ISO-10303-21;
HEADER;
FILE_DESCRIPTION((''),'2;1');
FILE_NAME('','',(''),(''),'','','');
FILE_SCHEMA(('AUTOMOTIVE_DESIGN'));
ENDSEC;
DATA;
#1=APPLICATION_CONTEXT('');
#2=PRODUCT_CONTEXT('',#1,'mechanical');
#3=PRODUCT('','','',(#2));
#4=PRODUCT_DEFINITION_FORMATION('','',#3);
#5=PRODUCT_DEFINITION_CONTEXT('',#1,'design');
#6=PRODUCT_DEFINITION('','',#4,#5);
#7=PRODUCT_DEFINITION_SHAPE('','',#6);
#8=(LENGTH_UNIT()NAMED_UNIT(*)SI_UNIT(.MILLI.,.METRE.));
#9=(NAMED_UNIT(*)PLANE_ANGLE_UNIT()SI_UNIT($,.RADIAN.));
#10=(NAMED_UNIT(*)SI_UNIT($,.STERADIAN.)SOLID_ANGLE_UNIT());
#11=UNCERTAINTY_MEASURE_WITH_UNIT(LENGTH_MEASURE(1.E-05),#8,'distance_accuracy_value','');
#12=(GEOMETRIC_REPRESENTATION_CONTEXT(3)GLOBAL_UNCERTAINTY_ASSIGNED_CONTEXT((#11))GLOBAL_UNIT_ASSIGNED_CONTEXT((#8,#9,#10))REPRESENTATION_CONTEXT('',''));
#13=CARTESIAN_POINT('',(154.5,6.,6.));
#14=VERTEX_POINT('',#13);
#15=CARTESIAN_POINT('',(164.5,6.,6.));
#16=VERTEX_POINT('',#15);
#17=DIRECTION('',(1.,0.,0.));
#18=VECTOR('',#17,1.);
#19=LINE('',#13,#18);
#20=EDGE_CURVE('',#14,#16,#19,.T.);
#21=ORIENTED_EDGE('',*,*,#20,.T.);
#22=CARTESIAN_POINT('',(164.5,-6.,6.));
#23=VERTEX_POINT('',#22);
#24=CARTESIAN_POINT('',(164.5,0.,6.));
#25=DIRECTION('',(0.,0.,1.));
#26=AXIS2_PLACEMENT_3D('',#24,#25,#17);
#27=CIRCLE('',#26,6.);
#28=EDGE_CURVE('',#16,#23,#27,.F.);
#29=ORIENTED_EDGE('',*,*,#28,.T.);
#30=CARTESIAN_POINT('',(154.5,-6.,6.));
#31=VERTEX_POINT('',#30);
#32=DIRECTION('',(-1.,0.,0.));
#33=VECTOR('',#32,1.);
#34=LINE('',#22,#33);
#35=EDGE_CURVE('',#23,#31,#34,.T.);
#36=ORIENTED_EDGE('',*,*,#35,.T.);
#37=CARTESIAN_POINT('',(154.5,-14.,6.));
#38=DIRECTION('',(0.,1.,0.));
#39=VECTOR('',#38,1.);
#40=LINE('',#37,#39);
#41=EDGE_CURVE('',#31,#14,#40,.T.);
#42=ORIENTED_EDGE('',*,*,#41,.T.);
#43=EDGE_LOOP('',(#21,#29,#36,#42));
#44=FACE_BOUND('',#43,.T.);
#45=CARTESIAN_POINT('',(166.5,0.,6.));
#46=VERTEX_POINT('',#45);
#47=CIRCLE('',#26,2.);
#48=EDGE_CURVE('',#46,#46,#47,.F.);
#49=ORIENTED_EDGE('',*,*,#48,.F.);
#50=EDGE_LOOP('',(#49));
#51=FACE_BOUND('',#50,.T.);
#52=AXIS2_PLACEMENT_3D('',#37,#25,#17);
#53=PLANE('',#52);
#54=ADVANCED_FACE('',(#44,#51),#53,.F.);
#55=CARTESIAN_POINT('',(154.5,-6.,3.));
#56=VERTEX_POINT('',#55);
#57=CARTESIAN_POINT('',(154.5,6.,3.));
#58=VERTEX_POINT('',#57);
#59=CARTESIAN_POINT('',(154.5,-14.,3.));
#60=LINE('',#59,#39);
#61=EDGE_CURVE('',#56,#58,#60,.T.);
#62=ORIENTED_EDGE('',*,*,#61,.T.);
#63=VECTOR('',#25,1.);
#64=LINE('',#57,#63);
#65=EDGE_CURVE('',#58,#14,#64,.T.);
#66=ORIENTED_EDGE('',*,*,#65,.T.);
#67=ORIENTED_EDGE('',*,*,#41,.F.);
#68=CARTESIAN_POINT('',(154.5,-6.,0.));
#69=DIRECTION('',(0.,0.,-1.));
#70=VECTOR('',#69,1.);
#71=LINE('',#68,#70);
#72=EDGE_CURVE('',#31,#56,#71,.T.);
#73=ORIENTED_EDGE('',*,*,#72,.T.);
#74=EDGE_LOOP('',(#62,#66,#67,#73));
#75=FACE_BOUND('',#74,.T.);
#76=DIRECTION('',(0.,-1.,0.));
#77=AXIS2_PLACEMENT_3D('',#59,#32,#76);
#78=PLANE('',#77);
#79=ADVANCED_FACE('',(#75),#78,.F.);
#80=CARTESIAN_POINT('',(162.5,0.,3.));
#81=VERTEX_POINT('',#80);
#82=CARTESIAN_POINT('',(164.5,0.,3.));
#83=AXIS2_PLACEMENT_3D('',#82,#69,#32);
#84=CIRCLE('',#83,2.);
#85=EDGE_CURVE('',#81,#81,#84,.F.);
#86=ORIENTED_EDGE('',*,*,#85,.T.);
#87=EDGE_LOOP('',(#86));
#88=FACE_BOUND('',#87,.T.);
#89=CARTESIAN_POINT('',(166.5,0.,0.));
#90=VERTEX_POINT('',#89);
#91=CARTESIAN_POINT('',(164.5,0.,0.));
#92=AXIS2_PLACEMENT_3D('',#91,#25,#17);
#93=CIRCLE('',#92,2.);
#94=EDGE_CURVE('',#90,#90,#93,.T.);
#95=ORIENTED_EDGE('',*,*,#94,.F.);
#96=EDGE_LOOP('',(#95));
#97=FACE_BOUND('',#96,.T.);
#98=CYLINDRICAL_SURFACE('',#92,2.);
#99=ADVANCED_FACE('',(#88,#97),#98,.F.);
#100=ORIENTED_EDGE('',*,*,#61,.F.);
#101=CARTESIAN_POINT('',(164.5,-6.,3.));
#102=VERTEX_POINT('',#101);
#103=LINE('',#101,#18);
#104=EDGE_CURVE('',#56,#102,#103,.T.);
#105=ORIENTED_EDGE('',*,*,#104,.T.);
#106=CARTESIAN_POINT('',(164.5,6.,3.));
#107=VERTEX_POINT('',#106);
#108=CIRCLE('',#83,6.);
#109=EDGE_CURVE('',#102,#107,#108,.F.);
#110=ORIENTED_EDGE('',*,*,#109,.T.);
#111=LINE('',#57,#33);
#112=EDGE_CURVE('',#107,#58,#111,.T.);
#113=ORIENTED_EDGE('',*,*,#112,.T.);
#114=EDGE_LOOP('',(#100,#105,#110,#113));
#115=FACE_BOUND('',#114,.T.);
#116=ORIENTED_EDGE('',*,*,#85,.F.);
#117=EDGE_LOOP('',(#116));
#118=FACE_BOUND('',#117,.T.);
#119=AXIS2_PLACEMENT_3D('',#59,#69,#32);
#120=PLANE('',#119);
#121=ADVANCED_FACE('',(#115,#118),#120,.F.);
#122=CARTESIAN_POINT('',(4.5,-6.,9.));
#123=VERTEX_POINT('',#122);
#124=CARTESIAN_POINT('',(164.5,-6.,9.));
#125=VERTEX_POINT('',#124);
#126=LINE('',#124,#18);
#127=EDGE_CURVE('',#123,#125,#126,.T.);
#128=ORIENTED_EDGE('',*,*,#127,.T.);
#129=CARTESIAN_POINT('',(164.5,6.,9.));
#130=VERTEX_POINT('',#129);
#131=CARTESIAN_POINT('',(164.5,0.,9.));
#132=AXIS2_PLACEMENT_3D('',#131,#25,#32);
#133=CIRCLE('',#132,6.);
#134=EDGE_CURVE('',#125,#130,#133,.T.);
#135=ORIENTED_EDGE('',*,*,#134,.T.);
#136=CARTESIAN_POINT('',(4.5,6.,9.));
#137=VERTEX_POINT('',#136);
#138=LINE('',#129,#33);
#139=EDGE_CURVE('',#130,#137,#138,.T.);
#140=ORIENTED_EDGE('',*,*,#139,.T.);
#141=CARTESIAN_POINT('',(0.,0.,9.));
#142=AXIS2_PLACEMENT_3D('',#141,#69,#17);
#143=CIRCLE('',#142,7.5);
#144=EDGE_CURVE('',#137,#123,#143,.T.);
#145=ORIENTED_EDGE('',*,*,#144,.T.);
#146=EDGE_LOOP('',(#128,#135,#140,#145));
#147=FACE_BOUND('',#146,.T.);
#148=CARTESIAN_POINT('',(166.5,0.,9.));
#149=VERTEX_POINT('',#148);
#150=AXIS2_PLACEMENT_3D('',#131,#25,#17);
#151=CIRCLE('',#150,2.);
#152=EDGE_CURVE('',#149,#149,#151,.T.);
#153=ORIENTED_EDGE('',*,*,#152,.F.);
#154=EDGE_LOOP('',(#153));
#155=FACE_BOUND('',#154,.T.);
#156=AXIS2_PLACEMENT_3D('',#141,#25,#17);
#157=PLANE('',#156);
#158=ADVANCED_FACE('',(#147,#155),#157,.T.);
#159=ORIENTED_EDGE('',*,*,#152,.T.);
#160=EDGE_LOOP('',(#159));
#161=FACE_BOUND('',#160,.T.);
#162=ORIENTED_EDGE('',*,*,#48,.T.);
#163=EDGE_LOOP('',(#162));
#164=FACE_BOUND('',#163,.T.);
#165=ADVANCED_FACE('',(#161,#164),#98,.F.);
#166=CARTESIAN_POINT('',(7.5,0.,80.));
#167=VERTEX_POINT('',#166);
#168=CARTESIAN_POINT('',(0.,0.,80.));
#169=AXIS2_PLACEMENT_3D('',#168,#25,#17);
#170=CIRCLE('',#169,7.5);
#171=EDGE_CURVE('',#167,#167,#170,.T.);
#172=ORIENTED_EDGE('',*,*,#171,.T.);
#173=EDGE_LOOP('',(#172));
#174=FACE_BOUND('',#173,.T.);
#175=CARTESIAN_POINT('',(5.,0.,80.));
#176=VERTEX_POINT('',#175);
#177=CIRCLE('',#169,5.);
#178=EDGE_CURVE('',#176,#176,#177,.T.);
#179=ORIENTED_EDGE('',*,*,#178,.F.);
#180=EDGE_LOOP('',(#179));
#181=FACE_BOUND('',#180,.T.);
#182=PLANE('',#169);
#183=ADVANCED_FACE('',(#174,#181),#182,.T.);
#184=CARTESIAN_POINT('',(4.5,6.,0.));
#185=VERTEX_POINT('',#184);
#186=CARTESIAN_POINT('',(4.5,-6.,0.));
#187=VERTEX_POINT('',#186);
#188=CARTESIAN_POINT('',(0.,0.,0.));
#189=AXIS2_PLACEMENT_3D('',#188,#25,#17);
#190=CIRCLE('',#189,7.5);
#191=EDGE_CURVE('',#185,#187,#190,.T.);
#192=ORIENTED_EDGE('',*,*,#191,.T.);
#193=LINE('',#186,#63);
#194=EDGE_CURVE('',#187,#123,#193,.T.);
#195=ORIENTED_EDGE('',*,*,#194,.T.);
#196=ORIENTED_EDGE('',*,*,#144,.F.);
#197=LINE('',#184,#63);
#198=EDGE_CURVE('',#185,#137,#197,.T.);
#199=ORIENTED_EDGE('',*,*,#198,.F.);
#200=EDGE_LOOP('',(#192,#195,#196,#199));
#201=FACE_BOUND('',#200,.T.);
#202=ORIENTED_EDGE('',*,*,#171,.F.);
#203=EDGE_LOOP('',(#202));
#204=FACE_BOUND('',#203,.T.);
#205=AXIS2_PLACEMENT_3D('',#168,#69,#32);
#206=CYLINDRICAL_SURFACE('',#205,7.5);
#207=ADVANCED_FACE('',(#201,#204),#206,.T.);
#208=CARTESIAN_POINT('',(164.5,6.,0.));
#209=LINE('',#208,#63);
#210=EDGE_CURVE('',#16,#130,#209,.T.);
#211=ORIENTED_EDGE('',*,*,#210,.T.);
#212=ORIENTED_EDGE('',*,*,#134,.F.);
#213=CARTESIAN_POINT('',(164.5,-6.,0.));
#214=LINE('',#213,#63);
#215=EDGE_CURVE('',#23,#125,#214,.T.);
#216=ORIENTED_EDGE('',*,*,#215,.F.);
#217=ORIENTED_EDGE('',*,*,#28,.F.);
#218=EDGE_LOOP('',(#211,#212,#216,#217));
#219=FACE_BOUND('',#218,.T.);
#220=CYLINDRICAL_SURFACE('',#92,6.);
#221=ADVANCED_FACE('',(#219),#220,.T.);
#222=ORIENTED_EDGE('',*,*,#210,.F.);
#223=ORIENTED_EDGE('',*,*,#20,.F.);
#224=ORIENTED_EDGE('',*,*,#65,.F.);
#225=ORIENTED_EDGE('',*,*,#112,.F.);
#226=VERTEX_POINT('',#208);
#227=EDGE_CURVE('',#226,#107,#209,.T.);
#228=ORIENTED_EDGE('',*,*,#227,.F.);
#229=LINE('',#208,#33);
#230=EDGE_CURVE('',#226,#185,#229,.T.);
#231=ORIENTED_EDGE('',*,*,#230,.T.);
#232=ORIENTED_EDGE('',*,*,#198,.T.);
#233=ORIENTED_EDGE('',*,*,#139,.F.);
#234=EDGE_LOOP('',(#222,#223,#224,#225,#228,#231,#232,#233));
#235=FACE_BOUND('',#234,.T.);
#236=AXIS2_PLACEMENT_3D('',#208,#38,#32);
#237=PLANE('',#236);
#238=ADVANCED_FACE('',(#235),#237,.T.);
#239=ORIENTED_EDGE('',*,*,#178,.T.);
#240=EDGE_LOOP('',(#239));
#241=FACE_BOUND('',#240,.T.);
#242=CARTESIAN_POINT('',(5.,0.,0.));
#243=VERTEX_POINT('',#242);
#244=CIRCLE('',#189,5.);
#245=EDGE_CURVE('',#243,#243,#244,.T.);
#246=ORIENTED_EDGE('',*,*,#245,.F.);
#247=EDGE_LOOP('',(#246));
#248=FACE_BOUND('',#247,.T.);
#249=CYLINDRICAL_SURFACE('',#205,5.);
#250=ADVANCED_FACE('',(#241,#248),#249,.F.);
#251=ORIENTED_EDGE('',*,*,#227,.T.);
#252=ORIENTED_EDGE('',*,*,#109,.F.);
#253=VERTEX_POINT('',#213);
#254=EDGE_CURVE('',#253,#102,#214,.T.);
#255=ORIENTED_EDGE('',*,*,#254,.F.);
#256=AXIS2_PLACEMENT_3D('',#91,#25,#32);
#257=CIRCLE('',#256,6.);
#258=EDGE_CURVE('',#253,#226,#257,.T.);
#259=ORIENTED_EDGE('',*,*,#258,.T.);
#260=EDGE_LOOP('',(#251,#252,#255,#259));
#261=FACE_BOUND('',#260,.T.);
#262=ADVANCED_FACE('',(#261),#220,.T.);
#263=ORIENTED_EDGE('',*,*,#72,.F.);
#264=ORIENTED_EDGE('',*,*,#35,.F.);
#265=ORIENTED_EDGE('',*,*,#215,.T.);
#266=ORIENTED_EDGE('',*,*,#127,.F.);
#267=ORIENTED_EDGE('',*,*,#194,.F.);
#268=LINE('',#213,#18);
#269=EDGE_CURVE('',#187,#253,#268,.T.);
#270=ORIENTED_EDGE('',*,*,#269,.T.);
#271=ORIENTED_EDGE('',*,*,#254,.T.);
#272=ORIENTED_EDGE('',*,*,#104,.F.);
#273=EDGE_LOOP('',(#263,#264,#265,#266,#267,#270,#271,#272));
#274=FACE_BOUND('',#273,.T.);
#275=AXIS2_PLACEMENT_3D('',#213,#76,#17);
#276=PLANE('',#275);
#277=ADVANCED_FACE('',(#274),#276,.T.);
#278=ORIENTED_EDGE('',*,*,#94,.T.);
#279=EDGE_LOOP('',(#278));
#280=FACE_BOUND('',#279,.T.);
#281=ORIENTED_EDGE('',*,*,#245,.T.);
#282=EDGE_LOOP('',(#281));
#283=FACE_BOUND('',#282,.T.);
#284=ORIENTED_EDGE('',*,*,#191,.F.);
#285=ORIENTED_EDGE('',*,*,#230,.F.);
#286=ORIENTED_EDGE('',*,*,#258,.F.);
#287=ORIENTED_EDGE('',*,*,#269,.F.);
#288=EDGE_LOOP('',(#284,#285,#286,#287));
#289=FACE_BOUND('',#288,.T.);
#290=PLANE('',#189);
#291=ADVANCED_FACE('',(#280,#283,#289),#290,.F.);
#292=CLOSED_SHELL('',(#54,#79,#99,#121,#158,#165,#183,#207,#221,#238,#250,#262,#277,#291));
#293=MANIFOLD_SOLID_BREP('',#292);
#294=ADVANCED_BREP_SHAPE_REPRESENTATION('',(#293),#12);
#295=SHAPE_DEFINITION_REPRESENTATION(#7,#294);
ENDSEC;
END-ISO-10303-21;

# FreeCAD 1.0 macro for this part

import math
import FreeCAD as App
import Part
import Sketcher
from FreeCAD import Vector

doc = App.newDocument("Part")
body = doc.addObject("PartDesign::Body", "Body")

# Sketch on XY plane
sketch1 = body.newObject("Sketcher::SketchObject", "Sketch")
sketch1.AttachmentSupport = (doc.getObject("XY_Plane"), [""])
sketch1.MapMode = "FlatFace"
sketch1.addGeometry([
    Part.Circle(Vector(0, 0, 0), Vector(0, 0, 1), 8),
    Part.Circle(Vector(0, 0, 0), Vector(0, 0, 1), 5),
], False)
sketch1.addConstraint([
    Sketcher.Constraint("Coincident", 0, 3, -1, 1),
    Sketcher.Constraint("Coincident", 1, 3, -1, 1),
    Sketcher.Constraint("Diameter", 0, 15.0),
    Sketcher.Constraint("Diameter", 1, 10.0),
])
pad1 = body.newObject("PartDesign::Pad", "Pad")
pad1.Profile = sketch1
pad1.Length = 80

# Sketch on XY plane
sketch2 = body.newObject("Sketcher::SketchObject", "Sketch001")
sketch2.AttachmentSupport = (doc.getObject("XY_Plane"), [""])
sketch2.MapMode = "FlatFace"
sketch2.addGeometry([
    Part.LineSegment(Vector(4.5, -6, 0), Vector(164.5, -6, 0)),  # 0
    Part.ArcOfCircle(Part.Circle(Vector(164.5, 0, 0), Vector(0, 0, 1), 6), math.radians(-90), math.radians(90)),  # 1
    Part.LineSegment(Vector(164.5, 6, 0), Vector(4.5, 6, 0)),  # 2
    Part.ArcOfCircle(Part.Circle(Vector(0, 0, 0), Vector(0, 0, 1), 7.5), math.radians(-53), math.radians(53)),  # 3
    Part.Circle(Vector(164.5, 0, 0), Vector(0, 0, 1), 2),  # 4
], False)
sketch2.addConstraint([
    Sketcher.Constraint("Tangent", 0, 2, 1, 1),
    Sketcher.Constraint("Tangent", 1, 2, 2, 1),
    Sketcher.Constraint("Coincident", 2, 2, 3, 2),
    Sketcher.Constraint("Coincident", 3, 1, 0, 1),
    Sketcher.Constraint("Horizontal", 0),
    Sketcher.Constraint("Horizontal", 2),
    Sketcher.Constraint("Coincident", 3, 3, -1, 1),
    Sketcher.Constraint("Coincident", 4, 3, 1, 3),
    Sketcher.Constraint("PointOnObject", 1, 3, -1),
    Sketcher.Constraint("Diameter", 4, 4.0),
    Sketcher.Constraint("Radius", 1, 6.0),
    Sketcher.Constraint("Radius", 3, 7.5),
    Sketcher.Constraint("DistanceX", 0, 1, 0, 2, 160.0),
])
pad2 = body.newObject("PartDesign::Pad", "Pad001")
pad2.Profile = sketch2
pad2.Length = 9

# Sketch on XZ plane
sketch3 = body.newObject("Sketcher::SketchObject", "Sketch002")
sketch3.AttachmentSupport = (doc.getObject("XZ_Plane"), [""])
sketch3.MapMode = "FlatFace"
sketch3.AttachmentOffset = App.Placement(Vector(0, 0, -6), App.Rotation())
sketch3.addGeometry([
    Part.LineSegment(Vector(154.5, 3, 0), Vector(154.5, 6, 0)),
    Part.LineSegment(Vector(154.5, 6, 0), Vector(174.5, 6, 0)),
    Part.LineSegment(Vector(174.5, 6, 0), Vector(174.5, 3, 0)),
    Part.LineSegment(Vector(174.5, 3, 0), Vector(154.5, 3, 0)),
], False)
sketch3.addConstraint([
    Sketcher.Constraint("Coincident", 0, 2, 1, 1),
    Sketcher.Constraint("Coincident", 1, 2, 2, 1),
    Sketcher.Constraint("Coincident", 2, 2, 3, 1),
    Sketcher.Constraint("Coincident", 3, 2, 0, 1),
    Sketcher.Constraint("Vertical", 0),
    Sketcher.Constraint("Horizontal", 1),
    Sketcher.Constraint("Vertical", 2),
    Sketcher.Constraint("Horizontal", 3),
    Sketcher.Constraint("DistanceX", 1, 1, 1, 2, 20.0),
    Sketcher.Constraint("DistanceY", 0, 1, 0, 2, 3.0),
    Sketcher.Constraint("DistanceY", -1, 1, 0, 2, 6.0),
    Sketcher.Constraint("DistanceX", -1, 1, 0, 2, 154.5),
])
pocket1 = body.newObject("PartDesign::Pocket", "Pocket")
pocket1.Profile = sketch3
pocket1.Length = 20
pocket1.Reversed = True

doc.recompute()
